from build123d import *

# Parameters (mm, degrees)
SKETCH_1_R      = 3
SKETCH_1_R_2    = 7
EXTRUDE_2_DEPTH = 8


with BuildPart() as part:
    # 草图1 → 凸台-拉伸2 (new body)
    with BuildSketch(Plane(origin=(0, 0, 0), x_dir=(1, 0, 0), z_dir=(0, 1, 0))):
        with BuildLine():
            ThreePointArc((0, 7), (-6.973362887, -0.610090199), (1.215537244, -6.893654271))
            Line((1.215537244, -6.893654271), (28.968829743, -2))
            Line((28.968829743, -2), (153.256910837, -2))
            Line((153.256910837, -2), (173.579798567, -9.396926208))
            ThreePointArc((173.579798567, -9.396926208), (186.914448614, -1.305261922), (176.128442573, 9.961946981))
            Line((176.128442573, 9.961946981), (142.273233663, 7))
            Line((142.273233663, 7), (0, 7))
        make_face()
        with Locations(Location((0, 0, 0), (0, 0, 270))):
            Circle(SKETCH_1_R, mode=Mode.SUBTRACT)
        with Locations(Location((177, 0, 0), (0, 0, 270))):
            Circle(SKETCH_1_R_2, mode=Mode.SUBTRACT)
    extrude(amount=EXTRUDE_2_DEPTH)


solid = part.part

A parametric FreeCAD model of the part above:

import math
import FreeCAD as App
import Part
import Sketcher
Q = App.Units.Quantity

doc = App.newDocument("Part")
body = doc.addObject("PartDesign::Body", "Body")

# Sketch on XZ plane
sketch1 = body.newObject("Sketcher::SketchObject", "Sketch")
sketch1.AttachmentSupport = (doc.getObject("XZ_Plane"), [""])
sketch1.MapMode = "FlatFace"
sketch1.addGeometry(Part.ArcOfCircle(Part.Circle(App.Vector(0, 0, 0), App.Vector(0, 0, 1), 7), math.radians(80), math.radians(270)), False)
sketch1.addGeometry(Part.LineSegment(App.Vector(1.2, 6.9, 0), App.Vector(29, 2, 0)), False)
sketch1.addGeometry(Part.LineSegment(App.Vector(29, 2, 0), App.Vector(153.3, 2, 0)), False)
sketch1.addGeometry(Part.LineSegment(App.Vector(153.3, 2, 0), App.Vector(173.6, 9.4, 0)), False)
sketch1.addGeometry(Part.ArcOfCircle(Part.Circle(App.Vector(177, 0, 0), App.Vector(0, 0, 1), 10), math.radians(-95), math.radians(110)), False)
sketch1.addGeometry(Part.LineSegment(App.Vector(176.1, -10, 0), App.Vector(142.3, -7, 0)), False)
sketch1.addGeometry(Part.LineSegment(App.Vector(142.3, -7, 0), App.Vector(0, -7, 0)), False)
sketch1.addGeometry(Part.Circle(App.Vector(0, 0, 0), App.Vector(0, 0, 1), 3), False)
sketch1.addGeometry(Part.Circle(App.Vector(177, 0, 0), App.Vector(0, 0, 1), 7), False)
sketch1.addConstraint(Sketcher.Constraint("Tangent", 0, 1, 1, 1))
sketch1.addConstraint(Sketcher.Constraint("Coincident", 1, 2, 2, 1))
sketch1.addConstraint(Sketcher.Constraint("Coincident", 2, 2, 3, 1))
sketch1.addConstraint(Sketcher.Constraint("Tangent", 3, 2, 4, 2))
sketch1.addConstraint(Sketcher.Constraint("Tangent", 4, 1, 5, 1))
sketch1.addConstraint(Sketcher.Constraint("Coincident", 5, 2, 6, 1))
sketch1.addConstraint(Sketcher.Constraint("Tangent", 6, 2, 0, 2))
sketch1.addConstraint(Sketcher.Constraint("Horizontal", 2))
sketch1.addConstraint(Sketcher.Constraint("Horizontal", 6))
sketch1.addConstraint(Sketcher.Constraint("Coincident", 0, 3, -1, 1))
sketch1.addConstraint(Sketcher.Constraint("Coincident", 7, 3, -1, 1))
sketch1.addConstraint(Sketcher.Constraint("Coincident", 8, 3, 4, 3))
sketch1.addConstraint(Sketcher.Constraint("Equal", 0, 8))
sketch1.addConstraint(Sketcher.Constraint("PointOnObject", 4, 3, -1))
sketch1.addConstraint(Sketcher.Constraint("Diameter", 7, 6.0))
sketch1.addConstraint(Sketcher.Constraint("Diameter", 8, 14.0))
sketch1.addConstraint(Sketcher.Constraint("Radius", 4, 10.0))
sketch1.addConstraint(Sketcher.Constraint("Angle", 1, Q("-10 deg")))
sketch1.addConstraint(Sketcher.Constraint("Angle", 3, Q("20 deg")))
sketch1.addConstraint(Sketcher.Constraint("Angle", 5, Q("175 deg")))
sketch1.addConstraint(Sketcher.Constraint("DistanceX", -1, 1, 4, 3, 177.0))
sketch1.addConstraint(Sketcher.Constraint("DistanceY", -1, 1, 1, 2, 2.0))
pad1 = body.newObject("PartDesign::Pad", "Pad")
pad1.Profile = sketch1
pad1.Length = 8
pad1.Reversed = True

doc.recompute()
